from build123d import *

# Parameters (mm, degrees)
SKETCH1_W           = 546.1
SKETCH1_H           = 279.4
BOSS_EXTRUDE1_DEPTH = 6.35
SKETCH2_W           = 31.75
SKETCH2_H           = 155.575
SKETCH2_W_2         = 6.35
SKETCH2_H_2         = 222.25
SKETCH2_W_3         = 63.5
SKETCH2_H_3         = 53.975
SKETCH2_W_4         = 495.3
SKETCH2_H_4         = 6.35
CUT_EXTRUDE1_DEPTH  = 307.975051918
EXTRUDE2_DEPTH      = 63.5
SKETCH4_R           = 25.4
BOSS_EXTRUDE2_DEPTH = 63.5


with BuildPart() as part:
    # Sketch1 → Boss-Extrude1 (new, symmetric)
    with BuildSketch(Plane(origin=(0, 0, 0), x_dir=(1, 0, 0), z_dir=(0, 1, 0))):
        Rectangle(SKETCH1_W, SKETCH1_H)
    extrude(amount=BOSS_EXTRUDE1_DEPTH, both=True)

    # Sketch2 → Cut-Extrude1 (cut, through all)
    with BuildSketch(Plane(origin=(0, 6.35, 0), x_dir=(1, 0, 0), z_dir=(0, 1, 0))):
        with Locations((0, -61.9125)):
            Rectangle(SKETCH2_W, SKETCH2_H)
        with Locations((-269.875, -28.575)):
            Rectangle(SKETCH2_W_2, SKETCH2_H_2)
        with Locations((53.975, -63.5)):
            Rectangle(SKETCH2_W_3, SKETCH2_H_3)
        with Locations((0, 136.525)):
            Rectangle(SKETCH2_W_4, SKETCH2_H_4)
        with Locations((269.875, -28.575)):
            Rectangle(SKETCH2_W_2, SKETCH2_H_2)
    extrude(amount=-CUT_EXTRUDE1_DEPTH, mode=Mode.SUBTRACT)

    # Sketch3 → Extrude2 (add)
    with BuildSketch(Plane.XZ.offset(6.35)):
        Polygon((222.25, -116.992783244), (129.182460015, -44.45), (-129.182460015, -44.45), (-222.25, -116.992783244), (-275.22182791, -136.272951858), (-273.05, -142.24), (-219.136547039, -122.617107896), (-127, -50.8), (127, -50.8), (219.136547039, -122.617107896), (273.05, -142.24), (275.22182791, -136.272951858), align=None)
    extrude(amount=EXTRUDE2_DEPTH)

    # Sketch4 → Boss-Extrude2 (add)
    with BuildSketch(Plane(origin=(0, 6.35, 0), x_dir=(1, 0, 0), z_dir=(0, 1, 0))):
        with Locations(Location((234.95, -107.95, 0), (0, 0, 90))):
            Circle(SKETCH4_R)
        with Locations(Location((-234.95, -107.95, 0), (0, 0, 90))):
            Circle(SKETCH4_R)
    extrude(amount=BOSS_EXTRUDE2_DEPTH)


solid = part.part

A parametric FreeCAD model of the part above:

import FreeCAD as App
import Part
import Sketcher
Q = App.Units.Quantity


def add_polygon(sketch, points):
    """Adds a closed chain of lines whose ends are joined by coincident constraints."""
    first, n = sketch.GeometryCount, len(points)
    for a, b in zip(points, points[1:] + points[:1]):
        sketch.addGeometry(Part.LineSegment(App.Vector(*a, 0), App.Vector(*b, 0)), False)
    for i in range(n):
        sketch.addConstraint(Sketcher.Constraint("Coincident", first + i, 2, first + (i + 1) % n, 1))

doc = App.newDocument("Part")
body = doc.addObject("PartDesign::Body", "Body")

# Sketch on XZ plane
sketch1 = doc.addObject("Sketcher::SketchObject", "Sketch")
body.addObject(sketch1)
sketch1.AttachmentSupport = (doc.XZ_Plane, [""])
sketch1.MapMode = "FlatFace"
add_polygon(sketch1, [(-273, -140), (-273, 140), (273, 140), (273, -140)])  # lines 0-3
sketch1.addConstraint([
    Sketcher.Constraint("Vertical", 0),
    Sketcher.Constraint("Horizontal", 1),
    Sketcher.Constraint("Vertical", 2),
    Sketcher.Constraint("Horizontal", 3),
    Sketcher.Constraint("Symmetric", 0, 2, 2, 2, -1, 1),
    Sketcher.Constraint("DistanceY", 0, 1, 0, 2, Q("11 in")),
    Sketcher.Constraint("DistanceX", 1, 1, 1, 2, Q("21.5 in")),
])
pad1 = doc.addObject("PartDesign::Pad", "Pad")
body.addObject(pad1)
pad1.Profile = sketch1
pad1.Length = Q("0.5 in")
pad1.Midplane = True

# Sketch on XZ plane
sketch2 = doc.addObject("Sketcher::SketchObject", "Sketch001")
body.addObject(sketch2)
sketch2.AttachmentSupport = (doc.XZ_Plane, [""])
sketch2.MapMode = "FlatFace"
sketch2.AttachmentOffset = App.Placement(App.Vector(0, 0, -0.25 * 25.4), App.Rotation())
add_polygon(sketch2, [(-16, -16), (-16, 140), (16, 140), (16, -16)])  # lines 0-3
add_polygon(sketch2, [(-273, -83), (-273, 140), (-267, 140), (-267, -83)])  # lines 4-7
add_polygon(sketch2, [(22, 37), (22, 90), (86, 90), (86, 37)])  # lines 8-11
add_polygon(sketch2, [(-248, -140), (-248, -133), (248, -133), (248, -140)])  # lines 12-15
add_polygon(sketch2, [(267, -83), (267, 140), (273, 140), (273, -83)])  # lines 16-19
sketch2.addConstraint([
    Sketcher.Constraint("Vertical", 0),
    Sketcher.Constraint("Horizontal", 1),
    Sketcher.Constraint("Vertical", 2),
    Sketcher.Constraint("Horizontal", 3),
    Sketcher.Constraint("Vertical", 4),
    Sketcher.Constraint("Horizontal", 5),
    Sketcher.Constraint("Vertical", 6),
    Sketcher.Constraint("Horizontal", 7),
    Sketcher.Constraint("Vertical", 8),
    Sketcher.Constraint("Horizontal", 9),
    Sketcher.Constraint("Vertical", 10),
    Sketcher.Constraint("Horizontal", 11),
    Sketcher.Constraint("Vertical", 12),
    Sketcher.Constraint("Horizontal", 13),
    Sketcher.Constraint("Vertical", 14),
    Sketcher.Constraint("Horizontal", 15),
    Sketcher.Constraint("Vertical", 16),
    Sketcher.Constraint("Horizontal", 17),
    Sketcher.Constraint("Vertical", 18),
    Sketcher.Constraint("Horizontal", 19),
    Sketcher.Constraint("Symmetric", 5, 2, 16, 2, -2),
    Sketcher.Constraint("Symmetric", 7, 2, 18, 2, -2),
    Sketcher.Constraint("Horizontal", 1, 2, 4, 2),
    Sketcher.Constraint("Equal", 19, 12),
    Sketcher.Constraint("DistanceX", 9, 1, 9, 2, Q("2.5 in")),
    Sketcher.Constraint("DistanceX", 13, 1, 13, 2, Q("19.5 in")),
    Sketcher.Constraint("DistanceX", 0, 2, 9, 2, Q("4 in")),
    Sketcher.Constraint("DistanceY", 12, 2, 6, 2, Q("2 in")),
    Sketcher.Constraint("DistanceX", 7, 2, 12, 2, Q("1 in")),
    Sketcher.Constraint("DistanceY", 15, 2, 5, 2, Q("11 in")),
    Sketcher.Constraint("DistanceX", 13, 2, 18, 2, Q("1 in")),
    Sketcher.Constraint("DistanceX", 1, 1, 1, 2, Q("1.25 in")),
    Sketcher.Constraint("DistanceX", 5, 1, 5, 2, Q("0.25 in")),
    Sketcher.Constraint("DistanceY", -1, 1, 0, 2, Q("5.5 in")),
    Sketcher.Constraint("DistanceY", 0, 1, 0, 2, Q("6.125 in")),
    Sketcher.Constraint("DistanceY", 8, 1, 8, 2, Q("2.125 in")),
    Sketcher.Constraint("DistanceX", 0, 2, -1, 1, Q("0.625 in")),
    Sketcher.Constraint("DistanceY", -1, 1, 8, 2, Q("3.5625 in")),
])
pocket1 = doc.addObject("PartDesign::Pocket", "Pocket")
body.addObject(pocket1)
pocket1.Profile = sketch2
pocket1.Type = "ThroughAll"
pocket1.Reversed = True

# Sketch on XZ plane
sketch3 = doc.addObject("Sketcher::SketchObject", "Sketch002")
body.addObject(sketch3)
sketch3.AttachmentSupport = (doc.XZ_Plane, [""])
sketch3.MapMode = "FlatFace"
sketch3.AttachmentOffset = App.Placement(App.Vector(0, 0, 0.25 * 25.4), App.Rotation())
add_polygon(sketch3, [(222, -117), (129, -44), (-129, -44), (-222, -117), (-275, -136), (-273, -142), (-219, -123), (-127, -51), (127, -51), (219, -123), (273, -142), (275, -136)])  # lines 0-11
sketch3.addConstraint([
    Sketcher.Constraint("Horizontal", 1),
    Sketcher.Constraint("Horizontal", 7),
    Sketcher.Constraint("Symmetric", 5, 2, 8, 2, -2),
    Sketcher.Constraint("Symmetric", 4, 2, 9, 2, -2),
    Sketcher.Constraint("Symmetric", 3, 2, 10, 2, -2),
    Sketcher.Constraint("Symmetric", 2, 2, 11, 2, -2),
    Sketcher.Constraint("Perpendicular", 3, 4),
    Sketcher.Constraint("Perpendicular", 4, 5),
    Sketcher.Constraint("Parallel", 2, 6),
    Sketcher.Constraint("Parallel", 0, 8),
    Sketcher.Constraint("Equal", 0, 2),
    Sketcher.Constraint("DistanceX", 7, 1, 7, 2, Q("10 in")),
    Sketcher.Constraint("DistanceY", 6, 2, -1, 1, Q("2 in")),
    Sketcher.Constraint("Angle", 3, Q("-160 deg")),
    Sketcher.Constraint("DistanceX", 4, 2, 2, 2, Q("2 in")),
    Sketcher.Constraint("DistanceY", 4, 2, -1, 1, Q("5.6 in")),
    Sketcher.Constraint("Distance", 4, Q("0.25 in")),
    Sketcher.Constraint("DistanceY", 0, 2, -1, 1, Q("1.75 in")),
    Sketcher.Constraint("DistanceX", 2, 2, -1, 1, Q("8.75 in")),
    Sketcher.Constraint("Distance", 5, 57.373498),
])
pad2 = doc.addObject("PartDesign::Pad", "Pad001")
body.addObject(pad2)
pad2.Profile = sketch3
pad2.Length = Q("2.5 in")

# Sketch on XZ plane
sketch4 = doc.addObject("Sketcher::SketchObject", "Sketch003")
body.addObject(sketch4)
sketch4.AttachmentSupport = (doc.XZ_Plane, [""])
sketch4.MapMode = "FlatFace"
sketch4.AttachmentOffset = App.Placement(App.Vector(0, 0, -0.25 * 25.4), App.Rotation())
sketch4.addGeometry([
    Part.Circle(App.Vector(235, 108, 0), App.Vector(0, 0, 1), 25),
    Part.Circle(App.Vector(-235, 108, 0), App.Vector(0, 0, 1), 25),
], False)
sketch4.addConstraint([
    Sketcher.Constraint("Equal", 0, 1),
    Sketcher.Constraint("Symmetric", 0, 3, 1, 3, -2),
    Sketcher.Constraint("Diameter", 0, Q("2 in")),
    Sketcher.Constraint("DistanceX", 1, 3, 0, 3, Q("18.5 in")),
    Sketcher.Constraint("DistanceY", -1, 1, 0, 3, Q("4.25 in")),
])
pad3 = doc.addObject("PartDesign::Pad", "Pad002")
body.addObject(pad3)
pad3.Profile = sketch4
pad3.Length = Q("2.5 in")
pad3.Reversed = True

doc.recompute()
